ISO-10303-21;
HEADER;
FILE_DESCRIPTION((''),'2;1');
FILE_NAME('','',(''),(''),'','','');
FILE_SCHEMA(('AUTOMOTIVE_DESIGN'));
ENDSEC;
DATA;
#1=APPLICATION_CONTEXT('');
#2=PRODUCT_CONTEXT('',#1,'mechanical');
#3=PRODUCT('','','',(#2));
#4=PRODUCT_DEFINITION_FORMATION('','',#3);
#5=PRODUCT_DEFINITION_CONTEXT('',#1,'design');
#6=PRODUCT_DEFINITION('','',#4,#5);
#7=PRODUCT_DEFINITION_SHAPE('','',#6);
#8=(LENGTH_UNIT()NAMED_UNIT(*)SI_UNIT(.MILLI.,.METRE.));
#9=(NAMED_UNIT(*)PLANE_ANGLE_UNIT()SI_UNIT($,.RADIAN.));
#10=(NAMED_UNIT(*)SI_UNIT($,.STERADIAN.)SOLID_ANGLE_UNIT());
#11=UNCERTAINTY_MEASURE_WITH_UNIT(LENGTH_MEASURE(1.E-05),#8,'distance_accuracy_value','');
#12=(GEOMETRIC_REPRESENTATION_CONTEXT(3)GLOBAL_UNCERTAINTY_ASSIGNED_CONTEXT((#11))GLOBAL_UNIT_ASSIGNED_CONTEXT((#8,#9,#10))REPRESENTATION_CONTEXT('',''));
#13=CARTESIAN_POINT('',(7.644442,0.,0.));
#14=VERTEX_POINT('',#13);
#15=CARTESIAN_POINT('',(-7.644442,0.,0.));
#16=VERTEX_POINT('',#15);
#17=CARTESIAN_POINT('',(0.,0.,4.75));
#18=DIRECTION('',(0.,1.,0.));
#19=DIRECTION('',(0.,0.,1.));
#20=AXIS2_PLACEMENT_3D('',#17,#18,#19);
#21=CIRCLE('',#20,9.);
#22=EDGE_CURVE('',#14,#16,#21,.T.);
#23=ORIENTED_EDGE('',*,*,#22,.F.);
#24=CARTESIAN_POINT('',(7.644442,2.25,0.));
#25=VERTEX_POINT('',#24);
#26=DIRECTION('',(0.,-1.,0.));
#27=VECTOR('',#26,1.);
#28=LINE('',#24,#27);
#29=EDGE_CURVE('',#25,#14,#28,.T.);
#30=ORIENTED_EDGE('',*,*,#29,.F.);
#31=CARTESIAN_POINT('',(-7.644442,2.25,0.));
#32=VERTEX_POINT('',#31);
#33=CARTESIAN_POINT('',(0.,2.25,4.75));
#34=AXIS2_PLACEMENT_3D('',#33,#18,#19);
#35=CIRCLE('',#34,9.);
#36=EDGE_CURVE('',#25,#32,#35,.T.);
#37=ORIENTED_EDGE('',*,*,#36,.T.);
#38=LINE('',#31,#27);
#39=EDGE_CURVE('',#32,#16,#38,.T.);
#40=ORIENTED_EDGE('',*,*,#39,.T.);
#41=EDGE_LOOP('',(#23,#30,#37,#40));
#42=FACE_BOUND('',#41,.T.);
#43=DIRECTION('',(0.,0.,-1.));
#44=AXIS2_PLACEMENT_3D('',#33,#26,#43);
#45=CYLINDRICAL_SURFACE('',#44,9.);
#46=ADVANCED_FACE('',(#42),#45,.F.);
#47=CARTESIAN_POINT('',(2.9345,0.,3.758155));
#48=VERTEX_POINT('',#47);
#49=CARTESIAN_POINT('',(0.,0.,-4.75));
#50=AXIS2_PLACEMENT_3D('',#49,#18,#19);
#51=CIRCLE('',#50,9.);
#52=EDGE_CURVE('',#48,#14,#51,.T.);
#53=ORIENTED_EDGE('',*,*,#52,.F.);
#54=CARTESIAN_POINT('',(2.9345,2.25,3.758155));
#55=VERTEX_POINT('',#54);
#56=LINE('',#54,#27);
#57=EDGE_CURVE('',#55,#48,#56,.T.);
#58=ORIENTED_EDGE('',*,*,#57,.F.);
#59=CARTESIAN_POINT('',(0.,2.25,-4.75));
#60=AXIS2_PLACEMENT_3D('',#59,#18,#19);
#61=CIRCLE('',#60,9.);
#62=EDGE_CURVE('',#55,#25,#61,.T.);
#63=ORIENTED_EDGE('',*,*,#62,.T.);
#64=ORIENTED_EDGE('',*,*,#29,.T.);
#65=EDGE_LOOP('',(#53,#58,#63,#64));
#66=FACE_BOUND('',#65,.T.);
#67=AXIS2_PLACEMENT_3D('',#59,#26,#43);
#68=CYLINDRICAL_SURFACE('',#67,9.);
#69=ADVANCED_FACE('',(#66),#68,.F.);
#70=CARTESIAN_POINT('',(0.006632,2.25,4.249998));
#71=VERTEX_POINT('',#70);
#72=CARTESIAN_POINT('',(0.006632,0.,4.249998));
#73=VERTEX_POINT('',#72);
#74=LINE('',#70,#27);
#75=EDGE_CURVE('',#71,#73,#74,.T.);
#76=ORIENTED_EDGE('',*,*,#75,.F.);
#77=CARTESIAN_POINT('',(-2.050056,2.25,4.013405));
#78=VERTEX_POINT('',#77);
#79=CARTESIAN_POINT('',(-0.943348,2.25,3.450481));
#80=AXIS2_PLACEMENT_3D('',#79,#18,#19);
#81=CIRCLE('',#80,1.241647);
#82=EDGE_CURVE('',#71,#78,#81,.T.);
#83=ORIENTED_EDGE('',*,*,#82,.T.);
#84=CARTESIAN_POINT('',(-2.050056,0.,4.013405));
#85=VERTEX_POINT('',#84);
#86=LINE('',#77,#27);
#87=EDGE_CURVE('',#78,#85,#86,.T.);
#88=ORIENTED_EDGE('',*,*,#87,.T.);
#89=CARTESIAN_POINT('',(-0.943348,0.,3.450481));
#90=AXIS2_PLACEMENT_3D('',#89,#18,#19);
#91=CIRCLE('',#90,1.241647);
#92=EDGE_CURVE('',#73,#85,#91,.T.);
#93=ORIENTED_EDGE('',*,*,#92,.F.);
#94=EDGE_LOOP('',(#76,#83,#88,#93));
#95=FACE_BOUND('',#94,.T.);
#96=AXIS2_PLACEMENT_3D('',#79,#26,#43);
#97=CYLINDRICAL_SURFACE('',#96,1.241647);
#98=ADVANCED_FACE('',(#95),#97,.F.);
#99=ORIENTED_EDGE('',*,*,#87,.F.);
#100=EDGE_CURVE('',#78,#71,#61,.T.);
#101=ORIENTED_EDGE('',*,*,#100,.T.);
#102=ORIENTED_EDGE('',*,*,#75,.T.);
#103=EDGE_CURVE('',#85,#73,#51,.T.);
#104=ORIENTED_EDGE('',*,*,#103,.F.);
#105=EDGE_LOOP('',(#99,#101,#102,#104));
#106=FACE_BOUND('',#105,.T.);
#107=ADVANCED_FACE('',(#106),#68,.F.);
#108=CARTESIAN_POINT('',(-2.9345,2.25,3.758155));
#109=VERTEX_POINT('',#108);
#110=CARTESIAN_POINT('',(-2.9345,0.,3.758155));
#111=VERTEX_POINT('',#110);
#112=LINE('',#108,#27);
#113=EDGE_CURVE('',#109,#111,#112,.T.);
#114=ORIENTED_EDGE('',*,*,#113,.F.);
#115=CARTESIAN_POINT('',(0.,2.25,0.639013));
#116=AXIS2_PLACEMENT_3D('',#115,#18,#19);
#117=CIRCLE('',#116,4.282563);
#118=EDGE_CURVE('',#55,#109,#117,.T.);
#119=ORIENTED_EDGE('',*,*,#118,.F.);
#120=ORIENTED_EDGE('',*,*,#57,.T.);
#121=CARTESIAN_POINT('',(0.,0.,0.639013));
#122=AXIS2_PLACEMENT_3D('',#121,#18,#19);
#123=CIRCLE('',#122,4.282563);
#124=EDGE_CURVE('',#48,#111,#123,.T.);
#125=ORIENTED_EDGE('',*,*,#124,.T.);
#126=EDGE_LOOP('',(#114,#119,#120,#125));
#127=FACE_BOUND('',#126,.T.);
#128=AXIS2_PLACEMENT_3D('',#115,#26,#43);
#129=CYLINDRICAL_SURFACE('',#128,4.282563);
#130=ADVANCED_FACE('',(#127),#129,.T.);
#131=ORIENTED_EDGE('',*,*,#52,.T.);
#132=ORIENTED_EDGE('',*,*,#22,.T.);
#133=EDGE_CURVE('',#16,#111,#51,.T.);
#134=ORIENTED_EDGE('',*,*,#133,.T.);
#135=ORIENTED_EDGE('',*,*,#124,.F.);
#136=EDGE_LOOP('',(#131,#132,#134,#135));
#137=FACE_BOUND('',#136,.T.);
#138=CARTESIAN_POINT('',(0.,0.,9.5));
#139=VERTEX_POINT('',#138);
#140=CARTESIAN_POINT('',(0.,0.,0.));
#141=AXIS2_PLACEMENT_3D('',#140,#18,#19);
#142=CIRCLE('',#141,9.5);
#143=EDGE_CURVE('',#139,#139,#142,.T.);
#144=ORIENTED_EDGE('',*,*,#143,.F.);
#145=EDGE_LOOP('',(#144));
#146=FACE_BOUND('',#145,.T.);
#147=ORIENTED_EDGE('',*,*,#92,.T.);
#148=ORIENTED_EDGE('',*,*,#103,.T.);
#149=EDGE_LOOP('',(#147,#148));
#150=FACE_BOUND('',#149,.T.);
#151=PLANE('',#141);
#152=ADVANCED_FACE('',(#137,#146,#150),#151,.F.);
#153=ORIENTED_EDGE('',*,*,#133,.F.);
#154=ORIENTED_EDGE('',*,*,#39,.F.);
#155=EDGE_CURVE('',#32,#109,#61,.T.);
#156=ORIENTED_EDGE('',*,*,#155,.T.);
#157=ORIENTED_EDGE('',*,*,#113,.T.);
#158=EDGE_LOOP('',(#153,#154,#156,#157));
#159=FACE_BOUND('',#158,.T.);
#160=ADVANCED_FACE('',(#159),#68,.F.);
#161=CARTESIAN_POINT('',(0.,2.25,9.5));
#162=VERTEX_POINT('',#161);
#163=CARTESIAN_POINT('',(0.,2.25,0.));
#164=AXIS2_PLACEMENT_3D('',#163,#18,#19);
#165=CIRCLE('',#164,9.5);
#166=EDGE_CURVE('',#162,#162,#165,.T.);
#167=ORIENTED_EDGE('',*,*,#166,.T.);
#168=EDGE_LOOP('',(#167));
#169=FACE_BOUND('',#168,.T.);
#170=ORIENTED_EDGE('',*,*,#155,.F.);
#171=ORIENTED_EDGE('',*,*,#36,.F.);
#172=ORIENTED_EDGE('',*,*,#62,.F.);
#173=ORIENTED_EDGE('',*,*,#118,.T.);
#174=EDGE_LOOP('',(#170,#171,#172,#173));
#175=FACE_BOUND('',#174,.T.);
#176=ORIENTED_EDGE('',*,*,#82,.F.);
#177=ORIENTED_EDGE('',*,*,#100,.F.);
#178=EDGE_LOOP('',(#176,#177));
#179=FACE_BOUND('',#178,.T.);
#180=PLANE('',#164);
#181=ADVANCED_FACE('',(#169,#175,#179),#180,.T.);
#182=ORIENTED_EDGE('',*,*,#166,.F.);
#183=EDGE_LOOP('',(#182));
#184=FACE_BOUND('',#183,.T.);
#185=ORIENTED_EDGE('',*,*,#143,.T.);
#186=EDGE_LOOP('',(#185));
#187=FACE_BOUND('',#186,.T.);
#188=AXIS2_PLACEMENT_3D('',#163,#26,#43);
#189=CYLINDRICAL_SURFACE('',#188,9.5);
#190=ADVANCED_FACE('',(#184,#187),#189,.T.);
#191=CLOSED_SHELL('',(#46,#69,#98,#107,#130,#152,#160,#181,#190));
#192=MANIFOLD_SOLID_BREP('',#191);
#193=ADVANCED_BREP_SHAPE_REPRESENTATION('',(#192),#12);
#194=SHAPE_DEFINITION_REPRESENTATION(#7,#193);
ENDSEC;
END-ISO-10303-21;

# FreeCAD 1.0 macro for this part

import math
import FreeCAD as App
import Part
import Sketcher

doc = App.newDocument("Part")
body = doc.addObject("PartDesign::Body", "Body")

# Sketch on XZ plane
sketch1 = body.newObject("Sketcher::SketchObject", "Sketch")
sketch1.AttachmentSupport = (doc.getObject("XZ_Plane"), [""])
sketch1.MapMode = "FlatFace"
sketch1.addGeometry([
    Part.Circle(App.Vector(0, 0, 0), App.Vector(0, 0, 1), 9.5),  # 0
    Part.ArcOfCircle(Part.Circle(App.Vector(0, -4.7, 0), App.Vector(0, 0, 1), 9), math.radians(89.96), math.radians(103.17)),  # 1
    Part.ArcOfCircle(Part.Circle(App.Vector(-0.9, 3.5, 0), App.Vector(0, 0, 1), 1.2), math.radians(153), math.radians(400)),  # 2
    Part.ArcOfCircle(Part.Circle(App.Vector(0, 4.8, 0), App.Vector(0, 0, 1), 9), math.radians(-148), math.radians(-32)),  # 3
    Part.ArcOfCircle(Part.Circle(App.Vector(0, -4.8, 0), App.Vector(0, 0, 1), 9), math.radians(32), math.radians(71)),  # 4
    Part.ArcOfCircle(Part.Circle(App.Vector(0, 0.6, 0), App.Vector(0, 0, 1), 4.3), math.radians(133), math.radians(407)),  # 5
    Part.ArcOfCircle(Part.Circle(App.Vector(0, -4.8, 0), App.Vector(0, 0, 1), 9), math.radians(109), math.radians(148)),  # 6
], False)
sketch1.addConstraint([
    Sketcher.Constraint("Coincident", 1, 1, 2, 2),
    Sketcher.Constraint("Coincident", 2, 1, 1, 2),
    Sketcher.Constraint("Coincident", 3, 2, 4, 1),
    Sketcher.Constraint("Coincident", 4, 2, 5, 2),
    Sketcher.Constraint("Coincident", 5, 1, 6, 1),
    Sketcher.Constraint("Coincident", 6, 2, 3, 1),
    Sketcher.Constraint("Coincident", 0, 3, -1, 1),
    Sketcher.Constraint("Coincident", 4, 3, 1, 3),
    Sketcher.Constraint("Coincident", 6, 3, 1, 3),
    Sketcher.Constraint("Equal", 1, 3),
    Sketcher.Constraint("Equal", 3, 4),
    Sketcher.Constraint("Equal", 4, 6),
    Sketcher.Constraint("Symmetric", 1, 3, 3, 3, -1, 1),
    Sketcher.Constraint("Symmetric", 4, 2, 5, 1, -2),
    Sketcher.Constraint("Diameter", 0, 19.0),
    Sketcher.Constraint("Radius", 1, 9.0),
    Sketcher.Constraint("DistanceY", 1, 3, 3, 3, 9.5),
    Sketcher.Constraint("Radius", 2, 1.241647),
    Sketcher.Constraint("Radius", 5, 4.282563),
    Sketcher.Constraint("DistanceX", -1, 1, 4, 2, 2.9345),
    Sketcher.Constraint("DistanceY", -1, 1, 2, 3, 3.450481),
    Sketcher.Constraint("DistanceX", -1, 1, 1, 1, 0.006632),
])
pad1 = body.newObject("PartDesign::Pad", "Pad")
pad1.Profile = sketch1
pad1.Length = 2.25
pad1.Reversed = True

doc.recompute()
